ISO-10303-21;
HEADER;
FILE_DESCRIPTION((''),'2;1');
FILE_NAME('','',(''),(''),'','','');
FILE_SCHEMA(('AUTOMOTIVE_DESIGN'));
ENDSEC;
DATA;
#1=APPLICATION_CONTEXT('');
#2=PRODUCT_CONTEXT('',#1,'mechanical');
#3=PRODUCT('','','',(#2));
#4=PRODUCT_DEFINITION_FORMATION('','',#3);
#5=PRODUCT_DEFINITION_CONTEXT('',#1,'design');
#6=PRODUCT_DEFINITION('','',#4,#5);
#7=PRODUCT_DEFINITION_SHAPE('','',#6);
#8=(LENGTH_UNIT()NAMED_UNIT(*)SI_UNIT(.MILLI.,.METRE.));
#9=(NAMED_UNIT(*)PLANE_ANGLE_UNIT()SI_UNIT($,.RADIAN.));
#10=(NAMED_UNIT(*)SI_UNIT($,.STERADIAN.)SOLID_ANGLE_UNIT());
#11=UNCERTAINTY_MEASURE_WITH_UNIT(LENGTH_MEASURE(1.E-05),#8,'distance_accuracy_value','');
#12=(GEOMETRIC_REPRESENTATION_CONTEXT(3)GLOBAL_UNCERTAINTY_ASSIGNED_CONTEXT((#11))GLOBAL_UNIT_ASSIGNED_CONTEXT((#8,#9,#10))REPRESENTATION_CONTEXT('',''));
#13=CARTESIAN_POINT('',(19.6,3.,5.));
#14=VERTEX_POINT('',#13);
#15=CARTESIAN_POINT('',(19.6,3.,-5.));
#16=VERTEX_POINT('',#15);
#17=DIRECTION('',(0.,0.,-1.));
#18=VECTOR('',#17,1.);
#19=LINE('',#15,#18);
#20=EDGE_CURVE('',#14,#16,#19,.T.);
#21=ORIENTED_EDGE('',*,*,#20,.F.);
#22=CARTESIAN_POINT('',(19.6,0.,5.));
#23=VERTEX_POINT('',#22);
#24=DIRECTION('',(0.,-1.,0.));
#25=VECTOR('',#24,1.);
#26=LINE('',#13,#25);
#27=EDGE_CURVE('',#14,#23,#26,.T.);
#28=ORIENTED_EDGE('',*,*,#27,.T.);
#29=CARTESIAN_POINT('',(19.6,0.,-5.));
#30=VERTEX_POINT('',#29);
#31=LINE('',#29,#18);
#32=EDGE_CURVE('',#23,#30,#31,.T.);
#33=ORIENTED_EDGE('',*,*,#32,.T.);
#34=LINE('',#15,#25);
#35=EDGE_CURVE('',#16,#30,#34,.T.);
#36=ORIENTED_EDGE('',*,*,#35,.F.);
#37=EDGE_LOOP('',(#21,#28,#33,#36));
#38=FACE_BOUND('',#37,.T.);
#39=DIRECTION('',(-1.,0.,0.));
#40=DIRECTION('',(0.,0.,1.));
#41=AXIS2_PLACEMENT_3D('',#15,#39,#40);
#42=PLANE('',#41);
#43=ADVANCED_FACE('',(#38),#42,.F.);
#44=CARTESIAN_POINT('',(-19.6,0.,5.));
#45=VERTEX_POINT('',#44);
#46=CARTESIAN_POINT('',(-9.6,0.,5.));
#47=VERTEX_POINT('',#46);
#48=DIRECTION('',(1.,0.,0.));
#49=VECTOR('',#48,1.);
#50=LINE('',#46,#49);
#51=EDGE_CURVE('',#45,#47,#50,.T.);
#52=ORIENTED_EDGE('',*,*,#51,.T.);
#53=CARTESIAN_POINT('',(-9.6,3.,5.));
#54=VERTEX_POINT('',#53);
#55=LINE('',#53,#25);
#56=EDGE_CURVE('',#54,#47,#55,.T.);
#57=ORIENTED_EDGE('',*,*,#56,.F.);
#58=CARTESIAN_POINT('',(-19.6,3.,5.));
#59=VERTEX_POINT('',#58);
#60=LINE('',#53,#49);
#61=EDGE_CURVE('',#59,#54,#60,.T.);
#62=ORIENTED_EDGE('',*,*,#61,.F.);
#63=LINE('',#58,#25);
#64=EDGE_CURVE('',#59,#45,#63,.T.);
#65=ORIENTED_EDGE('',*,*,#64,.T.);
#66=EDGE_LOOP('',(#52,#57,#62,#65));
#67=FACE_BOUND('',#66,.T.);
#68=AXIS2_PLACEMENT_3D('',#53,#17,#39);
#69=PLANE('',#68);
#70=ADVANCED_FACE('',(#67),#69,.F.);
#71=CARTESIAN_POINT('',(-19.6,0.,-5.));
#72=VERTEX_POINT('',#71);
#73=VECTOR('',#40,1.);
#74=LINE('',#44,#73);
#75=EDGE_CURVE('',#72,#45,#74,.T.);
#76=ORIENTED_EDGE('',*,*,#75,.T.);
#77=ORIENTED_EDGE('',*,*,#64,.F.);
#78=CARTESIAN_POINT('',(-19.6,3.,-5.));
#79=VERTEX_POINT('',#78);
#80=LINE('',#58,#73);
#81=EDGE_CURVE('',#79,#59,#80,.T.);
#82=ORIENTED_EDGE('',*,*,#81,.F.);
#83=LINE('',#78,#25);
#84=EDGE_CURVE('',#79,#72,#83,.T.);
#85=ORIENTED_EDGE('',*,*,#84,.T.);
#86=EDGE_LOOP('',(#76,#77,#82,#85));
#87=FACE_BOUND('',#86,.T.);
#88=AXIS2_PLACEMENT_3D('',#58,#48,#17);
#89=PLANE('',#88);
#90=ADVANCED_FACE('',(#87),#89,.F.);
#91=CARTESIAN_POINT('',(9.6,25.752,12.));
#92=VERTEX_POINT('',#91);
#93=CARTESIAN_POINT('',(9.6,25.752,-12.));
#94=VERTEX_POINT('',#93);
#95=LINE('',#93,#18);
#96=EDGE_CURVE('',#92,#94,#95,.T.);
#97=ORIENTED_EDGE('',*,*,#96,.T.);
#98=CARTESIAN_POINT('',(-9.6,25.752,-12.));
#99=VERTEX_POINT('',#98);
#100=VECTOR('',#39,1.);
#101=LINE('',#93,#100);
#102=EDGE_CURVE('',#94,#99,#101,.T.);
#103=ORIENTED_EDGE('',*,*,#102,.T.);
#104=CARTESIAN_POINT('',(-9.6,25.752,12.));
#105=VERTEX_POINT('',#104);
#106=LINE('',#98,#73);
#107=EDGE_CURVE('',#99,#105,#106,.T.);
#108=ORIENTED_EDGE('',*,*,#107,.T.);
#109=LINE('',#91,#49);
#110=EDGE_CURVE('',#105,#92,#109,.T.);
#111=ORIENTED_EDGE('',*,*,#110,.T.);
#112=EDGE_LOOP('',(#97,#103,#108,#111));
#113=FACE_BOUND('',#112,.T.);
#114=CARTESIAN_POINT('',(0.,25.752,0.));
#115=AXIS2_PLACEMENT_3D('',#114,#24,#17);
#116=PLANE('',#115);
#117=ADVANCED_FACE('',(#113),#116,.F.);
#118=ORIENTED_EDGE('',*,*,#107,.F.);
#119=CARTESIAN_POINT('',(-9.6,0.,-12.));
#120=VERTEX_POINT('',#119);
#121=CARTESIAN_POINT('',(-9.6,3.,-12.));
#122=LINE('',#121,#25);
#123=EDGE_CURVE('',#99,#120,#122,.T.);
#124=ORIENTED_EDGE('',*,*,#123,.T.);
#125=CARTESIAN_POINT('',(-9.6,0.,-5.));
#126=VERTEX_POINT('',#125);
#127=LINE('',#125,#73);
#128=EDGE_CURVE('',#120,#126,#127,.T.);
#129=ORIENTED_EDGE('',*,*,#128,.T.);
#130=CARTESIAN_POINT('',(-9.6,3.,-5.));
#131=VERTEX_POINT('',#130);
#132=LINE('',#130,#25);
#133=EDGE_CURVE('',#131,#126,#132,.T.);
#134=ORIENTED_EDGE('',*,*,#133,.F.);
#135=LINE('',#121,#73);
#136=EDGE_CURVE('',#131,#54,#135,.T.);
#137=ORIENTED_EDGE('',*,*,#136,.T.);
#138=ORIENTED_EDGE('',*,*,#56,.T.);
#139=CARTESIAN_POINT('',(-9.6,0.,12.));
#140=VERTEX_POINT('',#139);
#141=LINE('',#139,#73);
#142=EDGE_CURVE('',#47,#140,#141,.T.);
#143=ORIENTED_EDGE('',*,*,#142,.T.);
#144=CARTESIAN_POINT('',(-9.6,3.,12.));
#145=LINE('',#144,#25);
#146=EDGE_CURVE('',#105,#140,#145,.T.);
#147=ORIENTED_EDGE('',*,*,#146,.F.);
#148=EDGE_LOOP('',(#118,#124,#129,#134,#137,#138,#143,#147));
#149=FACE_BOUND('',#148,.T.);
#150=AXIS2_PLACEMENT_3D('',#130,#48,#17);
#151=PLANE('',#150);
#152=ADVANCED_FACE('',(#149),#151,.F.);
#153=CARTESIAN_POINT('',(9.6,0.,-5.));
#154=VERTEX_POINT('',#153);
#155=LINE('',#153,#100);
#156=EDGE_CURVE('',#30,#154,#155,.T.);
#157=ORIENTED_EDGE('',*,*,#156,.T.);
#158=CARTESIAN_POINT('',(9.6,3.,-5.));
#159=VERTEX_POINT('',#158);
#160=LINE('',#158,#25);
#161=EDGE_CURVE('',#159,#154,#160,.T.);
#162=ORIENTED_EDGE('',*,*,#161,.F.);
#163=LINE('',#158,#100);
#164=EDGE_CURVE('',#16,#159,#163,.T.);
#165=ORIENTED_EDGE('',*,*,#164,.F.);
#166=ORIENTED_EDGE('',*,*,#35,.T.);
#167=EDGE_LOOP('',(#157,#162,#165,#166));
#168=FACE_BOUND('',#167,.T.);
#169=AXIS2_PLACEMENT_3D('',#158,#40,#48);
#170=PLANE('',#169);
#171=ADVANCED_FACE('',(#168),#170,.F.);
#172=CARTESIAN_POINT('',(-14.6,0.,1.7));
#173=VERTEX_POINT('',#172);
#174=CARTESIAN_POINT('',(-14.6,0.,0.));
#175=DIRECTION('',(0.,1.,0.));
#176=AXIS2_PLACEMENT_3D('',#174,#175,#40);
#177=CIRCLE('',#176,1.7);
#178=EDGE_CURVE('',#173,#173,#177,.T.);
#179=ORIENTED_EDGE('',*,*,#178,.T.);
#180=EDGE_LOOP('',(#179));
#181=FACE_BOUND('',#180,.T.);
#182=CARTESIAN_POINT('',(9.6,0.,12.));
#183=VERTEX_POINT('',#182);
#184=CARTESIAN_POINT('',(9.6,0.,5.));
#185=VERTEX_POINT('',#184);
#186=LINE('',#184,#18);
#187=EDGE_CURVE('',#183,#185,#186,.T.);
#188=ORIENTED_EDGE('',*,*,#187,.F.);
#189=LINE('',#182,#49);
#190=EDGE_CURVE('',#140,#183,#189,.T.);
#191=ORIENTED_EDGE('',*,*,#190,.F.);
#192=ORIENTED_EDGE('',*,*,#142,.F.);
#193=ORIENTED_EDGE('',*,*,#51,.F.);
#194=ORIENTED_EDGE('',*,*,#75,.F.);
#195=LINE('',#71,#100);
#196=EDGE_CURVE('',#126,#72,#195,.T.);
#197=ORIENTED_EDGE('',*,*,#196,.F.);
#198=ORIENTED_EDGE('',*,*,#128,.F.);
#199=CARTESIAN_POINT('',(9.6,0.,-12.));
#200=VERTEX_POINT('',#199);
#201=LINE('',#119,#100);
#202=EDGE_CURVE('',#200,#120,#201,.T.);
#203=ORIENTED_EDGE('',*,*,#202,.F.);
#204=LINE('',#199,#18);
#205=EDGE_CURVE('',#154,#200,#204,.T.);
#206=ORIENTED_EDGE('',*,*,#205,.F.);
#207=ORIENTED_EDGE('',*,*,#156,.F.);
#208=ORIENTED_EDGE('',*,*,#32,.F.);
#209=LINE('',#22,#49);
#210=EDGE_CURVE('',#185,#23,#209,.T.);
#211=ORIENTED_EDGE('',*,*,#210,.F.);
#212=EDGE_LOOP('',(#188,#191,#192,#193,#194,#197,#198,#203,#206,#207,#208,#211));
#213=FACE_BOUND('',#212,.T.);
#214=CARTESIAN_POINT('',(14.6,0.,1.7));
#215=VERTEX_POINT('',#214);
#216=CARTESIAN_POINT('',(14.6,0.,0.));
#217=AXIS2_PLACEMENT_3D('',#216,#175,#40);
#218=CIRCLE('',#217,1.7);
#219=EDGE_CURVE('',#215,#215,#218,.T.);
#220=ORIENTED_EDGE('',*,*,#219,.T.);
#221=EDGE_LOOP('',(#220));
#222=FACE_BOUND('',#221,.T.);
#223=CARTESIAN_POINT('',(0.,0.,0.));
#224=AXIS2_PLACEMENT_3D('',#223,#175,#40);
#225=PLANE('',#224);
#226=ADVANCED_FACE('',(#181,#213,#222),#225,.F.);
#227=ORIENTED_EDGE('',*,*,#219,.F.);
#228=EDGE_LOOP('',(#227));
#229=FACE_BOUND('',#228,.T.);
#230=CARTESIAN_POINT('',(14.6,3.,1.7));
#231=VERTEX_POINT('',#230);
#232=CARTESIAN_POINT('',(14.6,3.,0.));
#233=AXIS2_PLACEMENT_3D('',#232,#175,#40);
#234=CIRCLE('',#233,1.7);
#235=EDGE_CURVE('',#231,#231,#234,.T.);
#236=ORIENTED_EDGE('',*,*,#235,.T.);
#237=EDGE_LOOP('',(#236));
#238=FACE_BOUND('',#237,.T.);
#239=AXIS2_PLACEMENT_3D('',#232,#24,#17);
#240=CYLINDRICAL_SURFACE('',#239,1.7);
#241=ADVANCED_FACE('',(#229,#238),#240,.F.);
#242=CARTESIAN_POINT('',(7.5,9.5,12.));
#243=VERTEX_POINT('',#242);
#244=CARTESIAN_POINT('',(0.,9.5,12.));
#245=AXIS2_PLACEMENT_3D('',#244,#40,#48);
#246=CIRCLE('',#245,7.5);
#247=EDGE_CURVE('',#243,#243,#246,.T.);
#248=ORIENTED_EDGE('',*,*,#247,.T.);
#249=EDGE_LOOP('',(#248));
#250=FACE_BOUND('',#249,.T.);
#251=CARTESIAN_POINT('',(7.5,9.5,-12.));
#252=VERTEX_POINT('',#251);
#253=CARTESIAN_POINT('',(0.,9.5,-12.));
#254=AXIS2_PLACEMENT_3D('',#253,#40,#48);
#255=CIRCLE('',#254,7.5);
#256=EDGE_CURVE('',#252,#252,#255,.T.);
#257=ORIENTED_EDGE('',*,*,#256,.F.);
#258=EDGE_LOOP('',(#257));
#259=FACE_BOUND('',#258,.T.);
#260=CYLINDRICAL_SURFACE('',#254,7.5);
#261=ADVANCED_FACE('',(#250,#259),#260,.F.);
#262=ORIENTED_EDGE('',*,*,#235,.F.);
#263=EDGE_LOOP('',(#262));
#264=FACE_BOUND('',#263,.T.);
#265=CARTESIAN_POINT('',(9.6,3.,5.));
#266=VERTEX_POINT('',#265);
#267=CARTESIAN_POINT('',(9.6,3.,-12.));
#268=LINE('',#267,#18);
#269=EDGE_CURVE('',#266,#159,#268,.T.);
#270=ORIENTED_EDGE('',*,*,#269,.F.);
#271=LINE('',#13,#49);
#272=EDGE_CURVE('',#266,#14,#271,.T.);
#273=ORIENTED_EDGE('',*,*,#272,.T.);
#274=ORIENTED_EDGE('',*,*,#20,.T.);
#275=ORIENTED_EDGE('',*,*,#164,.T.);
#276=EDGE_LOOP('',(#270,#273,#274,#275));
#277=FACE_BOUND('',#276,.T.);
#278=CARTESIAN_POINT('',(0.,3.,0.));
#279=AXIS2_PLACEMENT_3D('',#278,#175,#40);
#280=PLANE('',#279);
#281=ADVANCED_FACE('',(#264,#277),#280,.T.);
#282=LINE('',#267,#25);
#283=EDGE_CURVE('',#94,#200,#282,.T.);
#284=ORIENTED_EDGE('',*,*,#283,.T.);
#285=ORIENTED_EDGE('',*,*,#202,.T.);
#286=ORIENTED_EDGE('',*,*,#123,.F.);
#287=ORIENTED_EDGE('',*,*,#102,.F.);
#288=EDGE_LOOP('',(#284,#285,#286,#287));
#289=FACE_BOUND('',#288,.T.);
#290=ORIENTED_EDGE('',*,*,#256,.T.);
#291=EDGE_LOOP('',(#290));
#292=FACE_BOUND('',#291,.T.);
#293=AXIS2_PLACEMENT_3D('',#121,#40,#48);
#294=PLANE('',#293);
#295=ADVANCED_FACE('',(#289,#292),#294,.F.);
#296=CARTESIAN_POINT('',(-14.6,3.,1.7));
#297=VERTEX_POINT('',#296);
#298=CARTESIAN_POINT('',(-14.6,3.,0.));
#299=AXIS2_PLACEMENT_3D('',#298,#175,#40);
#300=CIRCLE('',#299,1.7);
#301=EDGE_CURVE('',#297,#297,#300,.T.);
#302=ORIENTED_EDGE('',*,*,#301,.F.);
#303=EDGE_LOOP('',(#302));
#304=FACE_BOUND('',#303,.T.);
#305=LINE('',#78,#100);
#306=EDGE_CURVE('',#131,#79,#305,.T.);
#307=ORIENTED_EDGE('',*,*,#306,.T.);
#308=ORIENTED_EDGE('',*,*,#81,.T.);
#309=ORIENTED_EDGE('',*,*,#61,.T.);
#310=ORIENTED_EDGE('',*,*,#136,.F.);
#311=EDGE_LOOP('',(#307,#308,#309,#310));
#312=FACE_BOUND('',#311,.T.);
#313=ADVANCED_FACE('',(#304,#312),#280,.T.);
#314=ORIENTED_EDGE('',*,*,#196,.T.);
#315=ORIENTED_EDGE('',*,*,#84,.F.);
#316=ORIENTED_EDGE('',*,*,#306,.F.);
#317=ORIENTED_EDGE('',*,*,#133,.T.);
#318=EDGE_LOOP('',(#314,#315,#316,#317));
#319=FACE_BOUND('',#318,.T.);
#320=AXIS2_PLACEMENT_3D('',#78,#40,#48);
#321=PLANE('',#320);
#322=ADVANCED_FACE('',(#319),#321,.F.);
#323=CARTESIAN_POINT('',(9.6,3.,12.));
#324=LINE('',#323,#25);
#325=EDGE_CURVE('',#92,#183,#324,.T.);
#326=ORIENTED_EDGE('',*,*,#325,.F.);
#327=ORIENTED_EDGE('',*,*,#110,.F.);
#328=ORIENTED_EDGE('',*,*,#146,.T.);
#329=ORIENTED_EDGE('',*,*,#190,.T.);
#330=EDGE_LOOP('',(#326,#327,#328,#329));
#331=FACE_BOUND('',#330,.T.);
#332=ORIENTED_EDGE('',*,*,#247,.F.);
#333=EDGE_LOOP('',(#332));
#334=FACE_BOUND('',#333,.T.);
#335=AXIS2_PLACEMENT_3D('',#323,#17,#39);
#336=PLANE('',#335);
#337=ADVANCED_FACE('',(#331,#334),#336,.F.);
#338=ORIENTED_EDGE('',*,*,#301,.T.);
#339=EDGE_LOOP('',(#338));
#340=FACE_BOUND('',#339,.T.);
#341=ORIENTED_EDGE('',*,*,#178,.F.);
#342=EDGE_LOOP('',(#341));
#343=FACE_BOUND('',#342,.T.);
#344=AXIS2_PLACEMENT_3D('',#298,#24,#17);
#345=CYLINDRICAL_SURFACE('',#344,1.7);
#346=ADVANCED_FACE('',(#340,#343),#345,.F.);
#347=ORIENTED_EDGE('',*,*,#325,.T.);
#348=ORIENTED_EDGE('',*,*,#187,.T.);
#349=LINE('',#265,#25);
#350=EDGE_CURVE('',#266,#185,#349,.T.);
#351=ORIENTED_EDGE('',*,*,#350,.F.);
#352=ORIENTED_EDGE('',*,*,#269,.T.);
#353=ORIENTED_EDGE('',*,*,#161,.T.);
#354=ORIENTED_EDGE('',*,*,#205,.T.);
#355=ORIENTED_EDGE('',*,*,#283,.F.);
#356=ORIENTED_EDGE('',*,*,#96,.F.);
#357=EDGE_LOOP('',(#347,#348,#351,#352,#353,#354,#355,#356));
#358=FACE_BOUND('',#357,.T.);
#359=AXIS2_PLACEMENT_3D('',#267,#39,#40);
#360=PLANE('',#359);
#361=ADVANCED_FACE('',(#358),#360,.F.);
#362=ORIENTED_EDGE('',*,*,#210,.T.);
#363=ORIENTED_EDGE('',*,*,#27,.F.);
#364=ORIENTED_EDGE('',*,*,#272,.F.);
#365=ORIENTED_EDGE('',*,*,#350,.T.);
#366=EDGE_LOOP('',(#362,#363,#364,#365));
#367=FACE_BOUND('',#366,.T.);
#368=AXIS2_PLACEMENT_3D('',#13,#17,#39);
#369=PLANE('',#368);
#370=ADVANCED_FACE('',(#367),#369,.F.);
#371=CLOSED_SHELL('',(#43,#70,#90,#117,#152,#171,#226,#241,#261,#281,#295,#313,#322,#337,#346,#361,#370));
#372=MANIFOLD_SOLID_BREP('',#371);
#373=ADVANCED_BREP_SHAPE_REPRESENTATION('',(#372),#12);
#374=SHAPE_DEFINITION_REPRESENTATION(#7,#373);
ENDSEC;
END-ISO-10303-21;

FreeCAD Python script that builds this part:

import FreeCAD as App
import Part
import Sketcher
from FreeCAD import Vector


def add_polygon(sketch, points):
    """Adds a closed chain of lines whose ends are joined by coincident constraints."""
    first, n = sketch.GeometryCount, len(points)
    for a, b in zip(points, points[1:] + points[:1]):
        sketch.addGeometry(Part.LineSegment(App.Vector(*a, 0), App.Vector(*b, 0)), False)
    for i in range(n):
        sketch.addConstraint(Sketcher.Constraint("Coincident", first + i, 2, first + (i + 1) % n, 1))

doc = App.newDocument("Part")
params = doc.addObject("Spreadsheet::Sheet", "Params")
for row, (alias, value) in enumerate([
    ("sketch1_diameter", "3.4 mm"),
    ("sketch1_width", "10 mm"),
    ("sketch1_height", "7 mm"),
    ("sketch1_width2", "19.2 mm"),
    ("pad1_length", "3 mm"),
    ("sketch2_height", "24 mm"),
    ("sketch2_width", "19.2 mm"),
    ("pad2_length", "22.752 mm"),
    ("sketch3_diameter", "15 mm"),
], start=1):
    params.set(f"A{row}", alias)
    params.set(f"B{row}", "=" + value)
    params.setAlias(f"B{row}", alias)

body = doc.addObject("PartDesign::Body", "Body")

# Sketch on XZ plane
sketch1 = body.newObject("Sketcher::SketchObject", "Sketch")
sketch1.AttachmentSupport = (doc.getObject("XZ_Plane"), [""])
sketch1.MapMode = "FlatFace"
add_polygon(sketch1, [(-9.6, -12), (-9.6, -5), (-19.6, -5), (-19.6, 5), (-9.6, 5), (-9.6, 12), (9.6, 12), (9.6, 5), (19.6, 5), (19.6, -5), (9.6, -5), (9.6, -12)])  # lines 0-11
sketch1.addGeometry(Part.Circle(Vector(14.6, 0, 0), Vector(0, 0, 1), 1.7), False)  # 12
sketch1.addGeometry(Part.Circle(Vector(-14.6, 0, 0), Vector(0, 0, 1), 1.7), False)  # 13
sketch1.addConstraint([
    Sketcher.Constraint("Vertical", 0),
    Sketcher.Constraint("Horizontal", 1),
    Sketcher.Constraint("Vertical", 2),
    Sketcher.Constraint("Horizontal", 3),
    Sketcher.Constraint("Vertical", 4),
    Sketcher.Constraint("Horizontal", 5),
    Sketcher.Constraint("Vertical", 6),
    Sketcher.Constraint("Horizontal", 7),
    Sketcher.Constraint("Vertical", 8),
    Sketcher.Constraint("Horizontal", 9),
    Sketcher.Constraint("Vertical", 10),
    Sketcher.Constraint("Horizontal", 11),
    Sketcher.Constraint("Equal", 12, 13),
    Sketcher.Constraint("Symmetric", 12, 3, 13, 3, -1, 1),
    Sketcher.Constraint("Symmetric", 0, 2, 6, 2, -1, 1),
    Sketcher.Constraint("Symmetric", 2, 2, 8, 2, -1, 1),
    Sketcher.Constraint("Symmetric", 4, 2, 10, 2, -1, 1),
    Sketcher.Constraint("Symmetric", 3, 2, 6, 2, -2),
    Sketcher.Constraint("PointOnObject", 12, 3, -1),
    Sketcher.Constraint("Equal", 9, 2),
    Sketcher.Constraint("Diameter", 12, 3.4),
    Sketcher.Constraint("DistanceX", 1, 2, 1, 1, 10.0),
    Sketcher.Constraint("DistanceY", 0, 1, 0, 2, 7.0),
    Sketcher.Constraint("DistanceX", 5, 1, 5, 2, 19.2),
    Sketcher.Constraint("DistanceX", 13, 3, 0, 2, 5.0),
])
sketch1.setExpression("Constraints[32]", "Params.sketch1_diameter")
sketch1.setExpression("Constraints[33]", "Params.sketch1_width")
sketch1.setExpression("Constraints[34]", "Params.sketch1_height")
sketch1.setExpression("Constraints[35]", "Params.sketch1_width2")
pad1 = body.newObject("PartDesign::Pad", "Pad")
pad1.Profile = sketch1
pad1.setExpression("Length", "Params.pad1_length")
pad1.Reversed = True

# Sketch on XZ plane
sketch2 = body.newObject("Sketcher::SketchObject", "Sketch001")
sketch2.AttachmentSupport = (doc.getObject("XZ_Plane"), [""])
sketch2.MapMode = "FlatFace"
sketch2.AttachmentOffset = App.Placement(Vector(0, 0, -3), App.Rotation())
add_polygon(sketch2, [(-9.6, -12), (-9.6, 12), (9.6, 12), (9.6, -12)])  # lines 0-3
sketch2.addConstraint([
    Sketcher.Constraint("Vertical", 0),
    Sketcher.Constraint("Horizontal", 1),
    Sketcher.Constraint("Vertical", 2),
    Sketcher.Constraint("Horizontal", 3),
    Sketcher.Constraint("Symmetric", 0, 2, 2, 2, -1, 1),
    Sketcher.Constraint("DistanceY", 0, 1, 0, 2, 24.0),
    Sketcher.Constraint("DistanceX", 1, 1, 1, 2, 19.2),
])
sketch2.setExpression("Constraints[9]", "Params.sketch2_height")
sketch2.setExpression("Constraints[10]", "Params.sketch2_width")
pad2 = body.newObject("PartDesign::Pad", "Pad001")
pad2.Profile = sketch2
pad2.setExpression("Length", "Params.pad2_length")
pad2.Reversed = True

# Sketch on XY plane
sketch3 = body.newObject("Sketcher::SketchObject", "Sketch002")
sketch3.AttachmentSupport = (doc.getObject("XY_Plane"), [""])
sketch3.MapMode = "FlatFace"
sketch3.AttachmentOffset = App.Placement(Vector(0, 0, 12), App.Rotation())
sketch3.addGeometry(Part.Circle(Vector(0, 9.5, 0), Vector(0, 0, 1), 7.5), False)
sketch3.addConstraint([
    Sketcher.Constraint("PointOnObject", 0, 3, -2),
    Sketcher.Constraint("Diameter", 0, 15.0),
    Sketcher.Constraint("DistanceY", -1, 1, 0, 3, 9.5),
])
sketch3.setExpression("Constraints[1]", "Params.sketch3_diameter")
pocket1 = body.newObject("PartDesign::Pocket", "Pocket")
pocket1.Profile = sketch3
pocket1.Type = "ThroughAll"

doc.recompute()
